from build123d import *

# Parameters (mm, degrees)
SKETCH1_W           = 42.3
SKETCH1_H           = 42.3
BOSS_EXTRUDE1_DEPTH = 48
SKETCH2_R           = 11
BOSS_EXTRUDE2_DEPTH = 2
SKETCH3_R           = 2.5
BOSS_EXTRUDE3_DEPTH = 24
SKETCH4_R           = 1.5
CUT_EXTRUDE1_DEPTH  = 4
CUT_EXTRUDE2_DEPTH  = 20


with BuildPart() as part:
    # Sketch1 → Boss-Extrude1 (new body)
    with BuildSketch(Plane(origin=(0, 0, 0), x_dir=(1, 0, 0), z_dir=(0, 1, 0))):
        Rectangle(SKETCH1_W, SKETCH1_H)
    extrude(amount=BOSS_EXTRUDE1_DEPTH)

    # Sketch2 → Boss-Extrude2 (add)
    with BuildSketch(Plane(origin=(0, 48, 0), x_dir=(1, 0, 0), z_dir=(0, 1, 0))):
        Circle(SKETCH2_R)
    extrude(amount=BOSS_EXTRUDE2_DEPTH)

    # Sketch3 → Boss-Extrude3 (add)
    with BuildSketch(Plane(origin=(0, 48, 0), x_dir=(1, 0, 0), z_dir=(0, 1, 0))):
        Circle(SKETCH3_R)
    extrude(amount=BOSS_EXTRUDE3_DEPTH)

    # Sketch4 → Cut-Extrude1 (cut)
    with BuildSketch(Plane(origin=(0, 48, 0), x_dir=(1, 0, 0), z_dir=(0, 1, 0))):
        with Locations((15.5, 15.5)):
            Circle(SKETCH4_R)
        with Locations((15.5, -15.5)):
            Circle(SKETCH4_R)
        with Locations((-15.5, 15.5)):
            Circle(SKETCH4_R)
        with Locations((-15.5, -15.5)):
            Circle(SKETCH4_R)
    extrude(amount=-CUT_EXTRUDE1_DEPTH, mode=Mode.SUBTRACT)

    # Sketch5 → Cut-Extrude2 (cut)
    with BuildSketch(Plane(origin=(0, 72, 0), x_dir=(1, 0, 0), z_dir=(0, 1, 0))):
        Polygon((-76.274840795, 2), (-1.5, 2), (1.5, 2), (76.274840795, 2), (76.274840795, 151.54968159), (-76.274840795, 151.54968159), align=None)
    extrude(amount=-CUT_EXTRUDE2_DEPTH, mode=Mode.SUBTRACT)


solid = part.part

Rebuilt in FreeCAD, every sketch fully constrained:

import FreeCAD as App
import Part
import Sketcher

V = App.Vector

doc = App.newDocument("Part")
body = doc.addObject("PartDesign::Body", "Body")

# Sketch on XZ plane
sketch1 = doc.addObject("Sketcher::SketchObject", "Sketch")
body.addObject(sketch1)
sketch1.AttachmentSupport = (doc.XZ_Plane, [""])
sketch1.MapMode = "FlatFace"
sketch1.addGeometry(Part.LineSegment(V(-21, -21, 0), V(-21, 21, 0)), False)
sketch1.addGeometry(Part.LineSegment(V(-21, 21, 0), V(21, 21, 0)), False)
sketch1.addGeometry(Part.LineSegment(V(21, 21, 0), V(21, -21, 0)), False)
sketch1.addGeometry(Part.LineSegment(V(21, -21, 0), V(-21, -21, 0)), False)
sketch1.addConstraint(Sketcher.Constraint("Coincident", 0, 2, 1, 1))
sketch1.addConstraint(Sketcher.Constraint("Coincident", 1, 2, 2, 1))
sketch1.addConstraint(Sketcher.Constraint("Coincident", 2, 2, 3, 1))
sketch1.addConstraint(Sketcher.Constraint("Coincident", 3, 2, 0, 1))
sketch1.addConstraint(Sketcher.Constraint("Vertical", 0))
sketch1.addConstraint(Sketcher.Constraint("Horizontal", 1))
sketch1.addConstraint(Sketcher.Constraint("Vertical", 2))
sketch1.addConstraint(Sketcher.Constraint("Horizontal", 3))
sketch1.addConstraint(Sketcher.Constraint("Symmetric", 0, 2, 2, 2, -1, 1))
sketch1.addConstraint(Sketcher.Constraint("Equal", 3, 0))
sketch1.addConstraint(Sketcher.Constraint("DistanceX", 1, 1, 1, 2, 42.3))
pad1 = doc.addObject("PartDesign::Pad", "Pad")
body.addObject(pad1)
pad1.Profile = sketch1
pad1.Length = 48
pad1.Reversed = True

# Sketch on XZ plane
sketch2 = doc.addObject("Sketcher::SketchObject", "Sketch001")
body.addObject(sketch2)
sketch2.AttachmentSupport = (doc.XZ_Plane, [""])
sketch2.MapMode = "FlatFace"
sketch2.AttachmentOffset = App.Placement(V(0, 0, -48), App.Rotation())
sketch2.addGeometry(Part.Circle(V(0, 0, 0), V(0, 0, 1), 11), False)
sketch2.addConstraint(Sketcher.Constraint("Coincident", 0, 3, -1, 1))
sketch2.addConstraint(Sketcher.Constraint("Diameter", 0, 22.0))
pad2 = doc.addObject("PartDesign::Pad", "Pad001")
body.addObject(pad2)
pad2.Profile = sketch2
pad2.Length = 2
pad2.Reversed = True

# Sketch on XZ plane
sketch3 = doc.addObject("Sketcher::SketchObject", "Sketch002")
body.addObject(sketch3)
sketch3.AttachmentSupport = (doc.XZ_Plane, [""])
sketch3.MapMode = "FlatFace"
sketch3.AttachmentOffset = App.Placement(V(0, 0, -48), App.Rotation())
sketch3.addGeometry(Part.Circle(V(0, 0, 0), V(0, 0, 1), 2.5), False)
sketch3.addConstraint(Sketcher.Constraint("Coincident", 0, 3, -1, 1))
sketch3.addConstraint(Sketcher.Constraint("Diameter", 0, 5.0))
pad3 = doc.addObject("PartDesign::Pad", "Pad002")
body.addObject(pad3)
pad3.Profile = sketch3
pad3.Length = 24
pad3.Reversed = True

# Sketch on XZ plane
sketch4 = doc.addObject("Sketcher::SketchObject", "Sketch003")
body.addObject(sketch4)
sketch4.AttachmentSupport = (doc.XZ_Plane, [""])
sketch4.MapMode = "FlatFace"
sketch4.AttachmentOffset = App.Placement(V(0, 0, -48), App.Rotation())
sketch4.addGeometry(Part.Circle(V(15.5, -15.5, 0), V(0, 0, 1), 1.5), False)
sketch4.addGeometry(Part.Circle(V(15.5, 15.5, 0), V(0, 0, 1), 1.5), False)
sketch4.addGeometry(Part.Circle(V(-15.5, -15.5, 0), V(0, 0, 1), 1.5), False)
sketch4.addGeometry(Part.Circle(V(-15.5, 15.5, 0), V(0, 0, 1), 1.5), False)
sketch4.addConstraint(Sketcher.Constraint("Equal", 0, 1))
sketch4.addConstraint(Sketcher.Constraint("Equal", 1, 2))
sketch4.addConstraint(Sketcher.Constraint("Equal", 2, 3))
sketch4.addConstraint(Sketcher.Constraint("Symmetric", 1, 3, 2, 3, -1, 1))
sketch4.addConstraint(Sketcher.Constraint("Symmetric", 0, 3, 3, 3, -1, 1))
sketch4.addConstraint(Sketcher.Constraint("Symmetric", 0, 3, 2, 3, -2))
sketch4.addConstraint(Sketcher.Constraint("Diameter", 0, 3.0))
sketch4.addConstraint(Sketcher.Constraint("DistanceY", 0, 3, 1, 3, 31.0))
sketch4.addConstraint(Sketcher.Constraint("DistanceX", 2, 3, 0, 3, 31.0))
pocket1 = doc.addObject("PartDesign::Pocket", "Pocket")
body.addObject(pocket1)
pocket1.Profile = sketch4
pocket1.Length = 4
pocket1.Reversed = True

# Sketch on XZ plane
sketch5 = doc.addObject("Sketcher::SketchObject", "Sketch004")
body.addObject(sketch5)
sketch5.AttachmentSupport = (doc.XZ_Plane, [""])
sketch5.MapMode = "FlatFace"
sketch5.AttachmentOffset = App.Placement(V(0, 0, -72), App.Rotation())
sketch5.addGeometry(Part.LineSegment(V(-76, -2, 0), V(76, -2, 0)), False)
sketch5.addGeometry(Part.LineSegment(V(76, -2, 0), V(76, -152, 0)), False)
sketch5.addGeometry(Part.LineSegment(V(76, -152, 0), V(-76, -152, 0)), False)
sketch5.addGeometry(Part.LineSegment(V(-76, -152, 0), V(-76, -2, 0)), False)
sketch5.addConstraint(Sketcher.Constraint("Coincident", 0, 2, 1, 1))
sketch5.addConstraint(Sketcher.Constraint("Coincident", 1, 2, 2, 1))
sketch5.addConstraint(Sketcher.Constraint("Coincident", 2, 2, 3, 1))
sketch5.addConstraint(Sketcher.Constraint("Coincident", 3, 2, 0, 1))
sketch5.addConstraint(Sketcher.Constraint("Horizontal", 0))
sketch5.addConstraint(Sketcher.Constraint("Vertical", 1))
sketch5.addConstraint(Sketcher.Constraint("Horizontal", 2))
sketch5.addConstraint(Sketcher.Constraint("Vertical", 3))
sketch5.addConstraint(Sketcher.Constraint("DistanceY", 0, 2, -1, 1, 2.0))
sketch5.addConstraint(Sketcher.Constraint("DistanceX", 0, 1, 0, 2, 152.549682))
sketch5.addConstraint(Sketcher.Constraint("DistanceY", 1, 2, 1, 1, 149.549682))
sketch5.addConstraint(Sketcher.Constraint("DistanceX", -1, 1, 0, 2, 76.274841))
pocket2 = doc.addObject("PartDesign::Pocket", "Pocket001")
body.addObject(pocket2)
pocket2.Profile = sketch5
pocket2.Length = 20
pocket2.Reversed = True

doc.recompute()
